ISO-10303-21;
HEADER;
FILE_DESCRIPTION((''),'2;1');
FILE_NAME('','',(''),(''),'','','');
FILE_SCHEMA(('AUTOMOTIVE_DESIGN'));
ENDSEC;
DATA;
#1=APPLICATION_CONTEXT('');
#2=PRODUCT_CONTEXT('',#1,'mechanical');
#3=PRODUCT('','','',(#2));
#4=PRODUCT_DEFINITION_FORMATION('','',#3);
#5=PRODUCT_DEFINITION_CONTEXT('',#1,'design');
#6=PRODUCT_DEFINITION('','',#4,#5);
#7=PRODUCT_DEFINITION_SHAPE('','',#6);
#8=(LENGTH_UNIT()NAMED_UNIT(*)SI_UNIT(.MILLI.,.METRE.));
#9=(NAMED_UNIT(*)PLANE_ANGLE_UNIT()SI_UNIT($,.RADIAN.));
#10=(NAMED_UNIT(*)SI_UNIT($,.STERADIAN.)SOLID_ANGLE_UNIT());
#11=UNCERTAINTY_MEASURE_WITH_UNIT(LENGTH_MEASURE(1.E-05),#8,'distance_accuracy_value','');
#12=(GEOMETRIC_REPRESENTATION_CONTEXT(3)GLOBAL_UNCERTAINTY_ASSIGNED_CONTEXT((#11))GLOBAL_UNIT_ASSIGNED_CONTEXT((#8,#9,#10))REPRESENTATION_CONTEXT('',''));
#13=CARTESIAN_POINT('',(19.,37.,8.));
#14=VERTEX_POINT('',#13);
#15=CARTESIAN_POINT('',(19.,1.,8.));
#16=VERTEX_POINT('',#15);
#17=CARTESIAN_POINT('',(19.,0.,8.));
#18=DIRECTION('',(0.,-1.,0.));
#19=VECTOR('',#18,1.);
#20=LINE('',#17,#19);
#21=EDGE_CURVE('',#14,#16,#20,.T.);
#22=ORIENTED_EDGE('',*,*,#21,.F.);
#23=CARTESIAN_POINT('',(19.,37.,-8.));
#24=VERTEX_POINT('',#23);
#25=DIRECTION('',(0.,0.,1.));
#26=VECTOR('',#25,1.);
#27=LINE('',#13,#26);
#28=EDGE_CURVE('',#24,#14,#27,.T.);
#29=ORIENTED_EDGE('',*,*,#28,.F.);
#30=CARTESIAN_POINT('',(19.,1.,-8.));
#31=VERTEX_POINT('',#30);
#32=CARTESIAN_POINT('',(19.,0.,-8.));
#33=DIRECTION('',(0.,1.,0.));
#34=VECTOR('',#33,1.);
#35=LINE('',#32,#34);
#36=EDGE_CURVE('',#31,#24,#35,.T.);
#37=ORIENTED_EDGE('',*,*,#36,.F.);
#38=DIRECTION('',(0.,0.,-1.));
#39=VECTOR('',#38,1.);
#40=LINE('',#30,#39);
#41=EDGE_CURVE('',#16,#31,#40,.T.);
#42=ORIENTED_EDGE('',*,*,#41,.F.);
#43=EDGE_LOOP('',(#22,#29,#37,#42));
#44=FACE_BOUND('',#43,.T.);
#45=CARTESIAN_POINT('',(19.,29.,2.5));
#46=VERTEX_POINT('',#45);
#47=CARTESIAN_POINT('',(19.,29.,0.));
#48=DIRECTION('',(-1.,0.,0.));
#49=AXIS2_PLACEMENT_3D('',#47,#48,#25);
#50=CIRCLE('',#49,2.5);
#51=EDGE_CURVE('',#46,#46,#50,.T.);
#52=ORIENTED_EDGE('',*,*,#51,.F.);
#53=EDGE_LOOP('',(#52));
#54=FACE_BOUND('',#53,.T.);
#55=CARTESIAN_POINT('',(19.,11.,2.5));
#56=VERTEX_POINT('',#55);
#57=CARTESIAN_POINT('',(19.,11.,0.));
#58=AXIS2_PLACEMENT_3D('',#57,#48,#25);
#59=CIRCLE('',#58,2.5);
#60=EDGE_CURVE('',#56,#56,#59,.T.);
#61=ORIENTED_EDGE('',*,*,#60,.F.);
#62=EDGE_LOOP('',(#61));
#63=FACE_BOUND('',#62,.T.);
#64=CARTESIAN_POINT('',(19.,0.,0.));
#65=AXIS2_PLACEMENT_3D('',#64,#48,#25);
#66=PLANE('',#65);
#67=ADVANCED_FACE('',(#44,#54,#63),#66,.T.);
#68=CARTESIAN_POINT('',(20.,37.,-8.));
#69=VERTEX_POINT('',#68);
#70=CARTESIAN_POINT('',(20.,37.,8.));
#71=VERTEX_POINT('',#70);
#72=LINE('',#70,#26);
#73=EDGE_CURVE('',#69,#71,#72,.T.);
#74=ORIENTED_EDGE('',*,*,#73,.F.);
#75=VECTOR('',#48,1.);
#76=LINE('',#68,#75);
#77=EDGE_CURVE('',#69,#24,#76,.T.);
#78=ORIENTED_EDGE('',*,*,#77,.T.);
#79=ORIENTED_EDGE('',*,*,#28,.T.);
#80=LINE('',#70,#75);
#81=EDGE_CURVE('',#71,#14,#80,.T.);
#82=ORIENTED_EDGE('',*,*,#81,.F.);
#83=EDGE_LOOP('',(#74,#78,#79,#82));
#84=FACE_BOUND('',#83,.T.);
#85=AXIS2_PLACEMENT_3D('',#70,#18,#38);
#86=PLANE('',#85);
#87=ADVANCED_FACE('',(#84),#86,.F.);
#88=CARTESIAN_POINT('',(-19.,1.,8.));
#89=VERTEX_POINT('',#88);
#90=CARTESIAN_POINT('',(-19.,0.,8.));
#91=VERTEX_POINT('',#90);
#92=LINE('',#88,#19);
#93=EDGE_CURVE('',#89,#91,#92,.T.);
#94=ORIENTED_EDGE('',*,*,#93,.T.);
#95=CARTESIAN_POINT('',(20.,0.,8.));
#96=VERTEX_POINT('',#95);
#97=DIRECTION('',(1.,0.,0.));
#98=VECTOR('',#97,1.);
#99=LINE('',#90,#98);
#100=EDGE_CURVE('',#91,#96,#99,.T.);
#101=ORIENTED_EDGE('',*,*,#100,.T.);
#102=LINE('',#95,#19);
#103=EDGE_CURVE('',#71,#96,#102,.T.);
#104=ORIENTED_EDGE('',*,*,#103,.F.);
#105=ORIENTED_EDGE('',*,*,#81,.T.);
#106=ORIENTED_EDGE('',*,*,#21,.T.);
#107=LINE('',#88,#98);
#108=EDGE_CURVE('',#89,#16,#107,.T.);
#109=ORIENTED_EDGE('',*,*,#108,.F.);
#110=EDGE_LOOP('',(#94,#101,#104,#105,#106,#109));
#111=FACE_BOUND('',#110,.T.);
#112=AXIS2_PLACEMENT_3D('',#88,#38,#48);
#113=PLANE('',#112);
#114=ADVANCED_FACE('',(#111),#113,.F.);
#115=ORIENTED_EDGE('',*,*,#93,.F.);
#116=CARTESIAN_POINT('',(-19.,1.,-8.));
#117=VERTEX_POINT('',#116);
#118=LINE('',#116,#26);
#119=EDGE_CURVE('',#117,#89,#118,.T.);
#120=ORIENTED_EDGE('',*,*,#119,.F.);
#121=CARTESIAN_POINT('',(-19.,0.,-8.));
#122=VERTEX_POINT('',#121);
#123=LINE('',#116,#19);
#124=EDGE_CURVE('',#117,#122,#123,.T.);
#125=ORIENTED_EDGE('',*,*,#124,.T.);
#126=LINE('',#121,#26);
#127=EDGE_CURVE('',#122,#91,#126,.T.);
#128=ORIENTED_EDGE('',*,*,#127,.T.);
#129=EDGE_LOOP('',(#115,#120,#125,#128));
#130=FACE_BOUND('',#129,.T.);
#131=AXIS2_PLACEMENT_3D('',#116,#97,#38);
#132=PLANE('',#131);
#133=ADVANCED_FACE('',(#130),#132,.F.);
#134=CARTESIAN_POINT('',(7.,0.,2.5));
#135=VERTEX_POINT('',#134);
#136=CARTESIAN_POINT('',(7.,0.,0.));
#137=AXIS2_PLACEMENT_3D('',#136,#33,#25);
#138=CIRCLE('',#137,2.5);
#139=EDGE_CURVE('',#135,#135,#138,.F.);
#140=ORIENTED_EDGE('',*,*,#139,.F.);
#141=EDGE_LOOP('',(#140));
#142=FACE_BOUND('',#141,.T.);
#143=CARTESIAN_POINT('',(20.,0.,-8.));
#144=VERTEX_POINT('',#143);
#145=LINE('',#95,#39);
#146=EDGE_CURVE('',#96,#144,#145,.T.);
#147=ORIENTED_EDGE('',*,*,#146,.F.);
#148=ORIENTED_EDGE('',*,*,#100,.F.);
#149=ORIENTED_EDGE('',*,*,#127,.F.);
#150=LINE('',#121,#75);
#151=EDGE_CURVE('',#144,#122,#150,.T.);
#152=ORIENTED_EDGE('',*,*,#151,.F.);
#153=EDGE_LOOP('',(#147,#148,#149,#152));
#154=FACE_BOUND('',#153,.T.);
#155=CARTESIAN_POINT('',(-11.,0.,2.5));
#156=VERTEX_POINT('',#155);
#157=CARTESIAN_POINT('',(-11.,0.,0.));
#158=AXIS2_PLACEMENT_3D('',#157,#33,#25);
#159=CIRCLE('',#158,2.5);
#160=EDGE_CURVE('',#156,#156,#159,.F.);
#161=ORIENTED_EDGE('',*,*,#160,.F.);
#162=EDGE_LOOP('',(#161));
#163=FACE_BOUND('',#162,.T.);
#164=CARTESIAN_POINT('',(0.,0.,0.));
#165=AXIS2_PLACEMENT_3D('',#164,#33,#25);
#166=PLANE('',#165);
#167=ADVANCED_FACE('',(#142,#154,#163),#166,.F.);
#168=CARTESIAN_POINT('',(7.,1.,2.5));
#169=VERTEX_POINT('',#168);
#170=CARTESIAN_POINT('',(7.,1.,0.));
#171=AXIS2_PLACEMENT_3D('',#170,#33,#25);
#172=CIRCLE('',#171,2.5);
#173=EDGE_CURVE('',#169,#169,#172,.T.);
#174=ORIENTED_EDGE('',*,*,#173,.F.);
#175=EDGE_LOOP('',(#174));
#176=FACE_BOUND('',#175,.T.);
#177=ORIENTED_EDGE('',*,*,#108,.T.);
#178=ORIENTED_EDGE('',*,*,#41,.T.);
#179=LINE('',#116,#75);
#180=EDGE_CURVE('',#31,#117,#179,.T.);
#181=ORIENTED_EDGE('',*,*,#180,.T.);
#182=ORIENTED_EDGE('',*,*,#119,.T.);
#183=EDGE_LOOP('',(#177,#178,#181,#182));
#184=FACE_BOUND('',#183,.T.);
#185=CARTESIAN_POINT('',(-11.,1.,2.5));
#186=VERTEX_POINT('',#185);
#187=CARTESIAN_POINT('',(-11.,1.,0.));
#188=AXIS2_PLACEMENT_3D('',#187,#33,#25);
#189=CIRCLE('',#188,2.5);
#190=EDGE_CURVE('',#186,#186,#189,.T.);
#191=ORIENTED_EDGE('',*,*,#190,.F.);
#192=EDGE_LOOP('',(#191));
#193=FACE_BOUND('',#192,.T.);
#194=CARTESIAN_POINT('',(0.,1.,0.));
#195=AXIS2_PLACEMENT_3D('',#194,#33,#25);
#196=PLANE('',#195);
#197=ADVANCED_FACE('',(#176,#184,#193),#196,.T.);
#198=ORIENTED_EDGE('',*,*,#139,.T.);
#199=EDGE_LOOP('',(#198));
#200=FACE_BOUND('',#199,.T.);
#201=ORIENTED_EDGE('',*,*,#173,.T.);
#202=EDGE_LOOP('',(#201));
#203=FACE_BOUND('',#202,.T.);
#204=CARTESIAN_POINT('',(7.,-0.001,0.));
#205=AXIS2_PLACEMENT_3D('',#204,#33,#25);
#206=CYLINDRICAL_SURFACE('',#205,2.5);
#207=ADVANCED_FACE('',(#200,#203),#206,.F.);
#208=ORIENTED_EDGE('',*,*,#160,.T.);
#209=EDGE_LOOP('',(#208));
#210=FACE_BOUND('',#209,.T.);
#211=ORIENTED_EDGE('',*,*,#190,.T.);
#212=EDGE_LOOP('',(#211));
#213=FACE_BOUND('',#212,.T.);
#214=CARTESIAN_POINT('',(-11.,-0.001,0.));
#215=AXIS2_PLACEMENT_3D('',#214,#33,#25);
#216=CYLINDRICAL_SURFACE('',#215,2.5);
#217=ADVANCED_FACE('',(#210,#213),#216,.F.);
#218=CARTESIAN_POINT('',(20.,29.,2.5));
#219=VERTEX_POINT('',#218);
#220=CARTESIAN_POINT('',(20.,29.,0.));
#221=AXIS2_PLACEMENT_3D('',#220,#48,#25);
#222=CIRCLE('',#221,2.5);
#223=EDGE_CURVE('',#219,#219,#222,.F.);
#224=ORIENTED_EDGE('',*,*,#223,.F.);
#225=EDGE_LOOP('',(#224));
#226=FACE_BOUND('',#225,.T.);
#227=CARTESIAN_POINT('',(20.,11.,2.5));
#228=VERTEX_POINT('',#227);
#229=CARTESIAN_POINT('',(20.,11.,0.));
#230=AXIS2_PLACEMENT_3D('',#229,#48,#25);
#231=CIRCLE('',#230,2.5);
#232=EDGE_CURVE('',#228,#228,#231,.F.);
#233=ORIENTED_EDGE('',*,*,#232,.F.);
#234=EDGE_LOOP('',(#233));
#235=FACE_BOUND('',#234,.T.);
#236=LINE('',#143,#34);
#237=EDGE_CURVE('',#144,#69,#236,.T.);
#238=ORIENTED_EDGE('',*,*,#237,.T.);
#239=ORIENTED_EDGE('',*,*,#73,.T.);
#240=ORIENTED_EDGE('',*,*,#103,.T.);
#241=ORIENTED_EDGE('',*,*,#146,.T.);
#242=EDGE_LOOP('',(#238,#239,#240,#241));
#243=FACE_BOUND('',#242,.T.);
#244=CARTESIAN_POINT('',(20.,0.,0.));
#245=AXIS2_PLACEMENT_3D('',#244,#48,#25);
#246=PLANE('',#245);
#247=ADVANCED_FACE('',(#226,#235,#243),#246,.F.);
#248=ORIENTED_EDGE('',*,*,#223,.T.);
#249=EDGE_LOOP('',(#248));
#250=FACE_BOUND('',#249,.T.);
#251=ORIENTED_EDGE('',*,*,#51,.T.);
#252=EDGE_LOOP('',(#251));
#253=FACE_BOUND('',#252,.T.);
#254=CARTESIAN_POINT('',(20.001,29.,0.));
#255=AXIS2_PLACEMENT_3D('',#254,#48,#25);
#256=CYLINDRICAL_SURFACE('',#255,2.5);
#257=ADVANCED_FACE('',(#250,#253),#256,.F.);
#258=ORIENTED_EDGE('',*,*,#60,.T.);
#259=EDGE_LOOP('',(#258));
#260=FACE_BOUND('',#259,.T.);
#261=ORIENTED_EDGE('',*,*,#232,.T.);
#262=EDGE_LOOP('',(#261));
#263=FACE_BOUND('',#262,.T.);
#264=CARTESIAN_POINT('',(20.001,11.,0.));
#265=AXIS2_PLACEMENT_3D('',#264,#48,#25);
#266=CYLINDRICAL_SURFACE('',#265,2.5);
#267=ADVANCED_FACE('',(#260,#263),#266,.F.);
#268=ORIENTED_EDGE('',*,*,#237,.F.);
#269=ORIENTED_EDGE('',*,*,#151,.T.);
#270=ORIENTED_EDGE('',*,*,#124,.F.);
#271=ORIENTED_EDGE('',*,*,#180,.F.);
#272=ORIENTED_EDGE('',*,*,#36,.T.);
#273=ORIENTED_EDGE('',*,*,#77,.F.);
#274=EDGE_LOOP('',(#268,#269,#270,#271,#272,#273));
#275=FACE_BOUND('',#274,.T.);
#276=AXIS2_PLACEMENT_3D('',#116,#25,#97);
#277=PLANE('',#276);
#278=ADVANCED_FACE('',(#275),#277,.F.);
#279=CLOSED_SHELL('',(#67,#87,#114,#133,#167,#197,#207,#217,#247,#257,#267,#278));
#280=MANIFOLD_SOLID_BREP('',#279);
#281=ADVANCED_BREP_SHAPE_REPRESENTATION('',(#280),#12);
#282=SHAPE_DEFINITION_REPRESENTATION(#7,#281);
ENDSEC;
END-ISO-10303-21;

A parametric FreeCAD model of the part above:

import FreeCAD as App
import Part
import Sketcher
from FreeCAD import Vector
Q = App.Units.Quantity

doc = App.newDocument("Part")
params = doc.addObject("Spreadsheet::Sheet", "Params")
for row, (alias, value) in enumerate([
    ("sketch1_width", "38 mm"),
    ("sketch1_height", "16 mm"),
    ("pad1_length", "1 mm"),
    ("sketch2_width", "37 mm"),
    ("sketch2_height", "16 mm"),
    ("pad2_length", "1 mm"),
    ("sketch3_diameter", "5 mm"),
    ("sketch4_diameter", "5 mm"),
    ("sketch5_diameter", "5 mm"),
    ("sketch6_diameter", "5 mm"),
], start=1):
    params.set(f"A{row}", alias)
    params.set(f"B{row}", "=" + value)
    params.setAlias(f"B{row}", alias)

body = doc.addObject("PartDesign::Body", "Body")

sketch1 = body.newObject("Sketcher::SketchObject", "Sketch")
sketch1.AttachmentSupport = (doc.getObject("XZ_Plane"), [""])
sketch1.MapMode = "FlatFace"
sketch1.addGeometry([
    Part.LineSegment(Vector(-19, -8, 0), Vector(-19, 8, 0)),
    Part.LineSegment(Vector(-19, 8, 0), Vector(19, 8, 0)),
    Part.LineSegment(Vector(19, 8, 0), Vector(19, -8, 0)),
    Part.LineSegment(Vector(19, -8, 0), Vector(-19, -8, 0)),
], False)
sketch1.addConstraint([
    Sketcher.Constraint("Coincident", 0, 2, 1, 1),
    Sketcher.Constraint("Coincident", 1, 2, 2, 1),
    Sketcher.Constraint("Coincident", 2, 2, 3, 1),
    Sketcher.Constraint("Coincident", 3, 2, 0, 1),
    Sketcher.Constraint("Vertical", 0),
    Sketcher.Constraint("Horizontal", 1),
    Sketcher.Constraint("Vertical", 2),
    Sketcher.Constraint("Horizontal", 3),
    Sketcher.Constraint("Symmetric", 0, 2, 2, 2, -1, 1),
    Sketcher.Constraint("DistanceX", 1, 1, 1, 2, Q("38 mm")),
    Sketcher.Constraint("DistanceY", 0, 1, 0, 2, Q("16 mm")),
])
sketch1.setExpression("Constraints[9]", "Params.sketch1_width")
sketch1.setExpression("Constraints[10]", "Params.sketch1_height")
pad1 = body.newObject("PartDesign::Pad", "Pad")
pad1.Profile = sketch1
pad1.setExpression("Length", "Params.pad1_length")
pad1.Reversed = True

sketch2 = body.newObject("Sketcher::SketchObject", "Sketch001")
sketch2.AttachmentSupport = (doc.getObject("YZ_Plane"), [""])
sketch2.MapMode = "FlatFace"
sketch2.AttachmentOffset = App.Placement(Vector(0, 0, 19), App.Rotation())
sketch2.addGeometry([
    Part.LineSegment(Vector(37, 8, 0), Vector(0, 8, 0)),
    Part.LineSegment(Vector(0, 8, 0), Vector(0, -8, 0)),
    Part.LineSegment(Vector(0, -8, 0), Vector(37, -8, 0)),
    Part.LineSegment(Vector(37, -8, 0), Vector(37, 8, 0)),
], False)
sketch2.addConstraint([
    Sketcher.Constraint("Coincident", 0, 2, 1, 1),
    Sketcher.Constraint("Coincident", 1, 2, 2, 1),
    Sketcher.Constraint("Coincident", 2, 2, 3, 1),
    Sketcher.Constraint("Coincident", 3, 2, 0, 1),
    Sketcher.Constraint("Horizontal", 0),
    Sketcher.Constraint("Vertical", 1),
    Sketcher.Constraint("Horizontal", 2),
    Sketcher.Constraint("Vertical", 3),
    Sketcher.Constraint("Symmetric", 0, 2, 1, 2, -1, 1),
    Sketcher.Constraint("DistanceX", 0, 2, 0, 1, Q("37 mm")),
    Sketcher.Constraint("DistanceY", 1, 2, 1, 1, Q("16 mm")),
])
sketch2.setExpression("Constraints[9]", "Params.sketch2_width")
sketch2.setExpression("Constraints[10]", "Params.sketch2_height")
pad2 = body.newObject("PartDesign::Pad", "Pad001")
pad2.Profile = sketch2
pad2.setExpression("Length", "Params.pad2_length")

sketch3 = body.newObject("Sketcher::SketchObject", "Sketch002")
sketch3.AttachmentSupport = (doc.getObject("XZ_Plane"), [""])
sketch3.MapMode = "FlatFace"
sketch3.AttachmentOffset = App.Placement(Vector(0, 0, -1), App.Rotation())
sketch3.addGeometry(Part.Circle(Vector(-11, 0, 0), Vector(0, 0, 1), 2.5), False)
sketch3.addConstraint([
    Sketcher.Constraint("PointOnObject", 0, 3, -1),
    Sketcher.Constraint("Diameter", 0, Q("5 mm")),
    Sketcher.Constraint("DistanceX", 0, 3, -1, 1, Q("11 mm")),
])
sketch3.setExpression("Constraints[1]", "Params.sketch3_diameter")
pocket1 = body.newObject("PartDesign::Pocket", "Pocket")
pocket1.Profile = sketch3
pocket1.Type = "UpToFirst"
pocket1.Reversed = True

sketch4 = body.newObject("Sketcher::SketchObject", "Sketch003")
sketch4.AttachmentSupport = (doc.getObject("XZ_Plane"), [""])
sketch4.MapMode = "FlatFace"
sketch4.AttachmentOffset = App.Placement(Vector(0, 0, -1), App.Rotation())
sketch4.addGeometry(Part.Circle(Vector(7, 0, 0), Vector(0, 0, 1), 2.5), False)
sketch4.addConstraint([
    Sketcher.Constraint("PointOnObject", 0, 3, -1),
    Sketcher.Constraint("Diameter", 0, Q("5 mm")),
    Sketcher.Constraint("DistanceX", -1, 1, 0, 3, Q("7 mm")),
])
sketch4.setExpression("Constraints[1]", "Params.sketch4_diameter")
pocket2 = body.newObject("PartDesign::Pocket", "Pocket001")
pocket2.Profile = sketch4
pocket2.Type = "UpToFirst"
pocket2.Reversed = True

sketch5 = body.newObject("Sketcher::SketchObject", "Sketch004")
sketch5.AttachmentSupport = (doc.getObject("YZ_Plane"), [""])
sketch5.MapMode = "FlatFace"
sketch5.AttachmentOffset = App.Placement(Vector(0, 0, 19), App.Rotation())
sketch5.addGeometry(Part.Circle(Vector(29, 0, 0), Vector(0, 0, 1), 2.5), False)
sketch5.addConstraint([
    Sketcher.Constraint("PointOnObject", 0, 3, -1),
    Sketcher.Constraint("Diameter", 0, Q("5 mm")),
    Sketcher.Constraint("DistanceX", -1, 1, 0, 3, Q("29 mm")),
])
sketch5.setExpression("Constraints[1]", "Params.sketch5_diameter")
pocket3 = body.newObject("PartDesign::Pocket", "Pocket002")
pocket3.Profile = sketch5
pocket3.Type = "UpToFirst"
pocket3.Reversed = True

sketch6 = body.newObject("Sketcher::SketchObject", "Sketch005")
sketch6.AttachmentSupport = (doc.getObject("YZ_Plane"), [""])
sketch6.MapMode = "FlatFace"
sketch6.AttachmentOffset = App.Placement(Vector(0, 0, 19), App.Rotation())
sketch6.addGeometry(Part.Circle(Vector(11, 0, 0), Vector(0, 0, 1), 2.5), False)
sketch6.addConstraint([
    Sketcher.Constraint("PointOnObject", 0, 3, -1),
    Sketcher.Constraint("Diameter", 0, Q("5 mm")),
    Sketcher.Constraint("DistanceX", -1, 1, 0, 3, Q("11 mm")),
])
sketch6.setExpression("Constraints[1]", "Params.sketch6_diameter")
pocket4 = body.newObject("PartDesign::Pocket", "Pocket003")
pocket4.Profile = sketch6
pocket4.Type = "UpToFirst"
pocket4.Reversed = True

doc.recompute()
